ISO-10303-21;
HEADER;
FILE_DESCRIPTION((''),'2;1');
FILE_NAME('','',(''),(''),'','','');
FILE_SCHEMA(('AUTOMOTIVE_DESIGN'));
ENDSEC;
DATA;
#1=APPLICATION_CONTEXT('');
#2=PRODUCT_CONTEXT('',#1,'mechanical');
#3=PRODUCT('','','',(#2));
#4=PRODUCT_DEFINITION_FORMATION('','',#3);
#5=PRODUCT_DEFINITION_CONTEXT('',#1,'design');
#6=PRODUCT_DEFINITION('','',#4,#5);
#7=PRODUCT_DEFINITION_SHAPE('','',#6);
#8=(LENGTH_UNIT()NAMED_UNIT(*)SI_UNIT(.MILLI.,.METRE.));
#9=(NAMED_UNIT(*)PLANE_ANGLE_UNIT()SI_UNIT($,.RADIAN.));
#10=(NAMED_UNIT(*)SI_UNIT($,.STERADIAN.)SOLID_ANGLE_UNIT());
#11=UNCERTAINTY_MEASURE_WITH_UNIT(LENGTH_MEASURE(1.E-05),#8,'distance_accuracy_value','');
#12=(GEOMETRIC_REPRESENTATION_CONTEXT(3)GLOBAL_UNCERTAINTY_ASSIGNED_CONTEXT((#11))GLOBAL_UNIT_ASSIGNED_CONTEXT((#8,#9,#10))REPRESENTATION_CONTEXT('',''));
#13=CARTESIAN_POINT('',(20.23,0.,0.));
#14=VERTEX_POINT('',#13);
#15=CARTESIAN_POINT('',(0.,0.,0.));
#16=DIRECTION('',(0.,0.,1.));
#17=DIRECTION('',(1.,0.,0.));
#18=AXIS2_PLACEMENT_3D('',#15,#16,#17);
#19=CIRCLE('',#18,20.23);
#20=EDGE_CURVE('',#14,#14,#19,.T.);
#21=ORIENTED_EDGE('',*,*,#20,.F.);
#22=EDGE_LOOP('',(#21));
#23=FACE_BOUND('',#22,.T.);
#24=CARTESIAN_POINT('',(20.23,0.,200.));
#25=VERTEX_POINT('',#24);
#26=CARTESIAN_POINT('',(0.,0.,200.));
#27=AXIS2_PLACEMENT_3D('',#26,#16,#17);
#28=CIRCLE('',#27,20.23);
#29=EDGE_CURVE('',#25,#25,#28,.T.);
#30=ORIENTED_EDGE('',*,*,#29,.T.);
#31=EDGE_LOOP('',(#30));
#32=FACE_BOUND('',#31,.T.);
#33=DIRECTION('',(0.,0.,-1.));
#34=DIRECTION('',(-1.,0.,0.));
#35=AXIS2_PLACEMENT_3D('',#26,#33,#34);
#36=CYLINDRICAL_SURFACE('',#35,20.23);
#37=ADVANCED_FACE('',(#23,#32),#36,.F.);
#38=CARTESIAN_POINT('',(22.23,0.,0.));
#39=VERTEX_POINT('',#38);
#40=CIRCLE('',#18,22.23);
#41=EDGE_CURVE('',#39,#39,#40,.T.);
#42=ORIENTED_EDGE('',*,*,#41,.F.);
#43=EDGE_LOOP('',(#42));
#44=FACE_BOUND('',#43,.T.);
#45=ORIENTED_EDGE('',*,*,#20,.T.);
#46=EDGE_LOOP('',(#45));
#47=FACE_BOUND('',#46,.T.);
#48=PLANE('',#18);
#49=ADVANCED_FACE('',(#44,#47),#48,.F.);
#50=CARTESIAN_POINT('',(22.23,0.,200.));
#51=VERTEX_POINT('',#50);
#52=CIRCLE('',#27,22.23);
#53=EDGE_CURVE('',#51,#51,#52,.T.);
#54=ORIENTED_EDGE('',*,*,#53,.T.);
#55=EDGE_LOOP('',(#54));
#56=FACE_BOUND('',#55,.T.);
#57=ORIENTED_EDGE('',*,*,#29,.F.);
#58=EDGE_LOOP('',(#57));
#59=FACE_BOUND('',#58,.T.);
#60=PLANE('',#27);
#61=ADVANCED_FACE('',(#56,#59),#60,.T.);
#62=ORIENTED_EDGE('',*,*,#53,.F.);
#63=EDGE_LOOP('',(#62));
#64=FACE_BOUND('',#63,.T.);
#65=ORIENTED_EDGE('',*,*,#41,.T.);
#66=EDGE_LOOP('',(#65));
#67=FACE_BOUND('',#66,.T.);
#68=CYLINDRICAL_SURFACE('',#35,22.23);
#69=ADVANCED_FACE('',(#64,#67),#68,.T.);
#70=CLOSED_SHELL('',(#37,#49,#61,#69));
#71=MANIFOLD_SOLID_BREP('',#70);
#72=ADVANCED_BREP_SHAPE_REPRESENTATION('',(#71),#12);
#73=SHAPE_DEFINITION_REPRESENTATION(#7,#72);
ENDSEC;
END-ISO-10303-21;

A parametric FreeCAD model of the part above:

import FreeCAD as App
import Part
import Sketcher
Q = App.Units.Quantity

doc = App.newDocument("Part")
params = doc.addObject("Spreadsheet::Sheet", "Params")
for row, (alias, value) in enumerate([
    ("sketch1_diameter", "44.46 mm"),
    ("sketch1_diameter2", "40.46 mm"),
    ("pad1_length", "200 mm"),
], start=1):
    params.set(f"A{row}", alias)
    params.set(f"B{row}", "=" + value)
    params.setAlias(f"B{row}", alias)

body = doc.addObject("PartDesign::Body", "Body")

sketch1 = body.newObject("Sketcher::SketchObject", "Sketch")
sketch1.AttachmentSupport = (doc.getObject("XY_Plane"), [""])
sketch1.MapMode = "FlatFace"
sketch1.addGeometry([
    Part.Circle(App.Vector(0, 0, 0), App.Vector(0, 0, 1), 22.23),
    Part.Circle(App.Vector(0, 0, 0), App.Vector(0, 0, 1), 20.23),
], False)
sketch1.addConstraint([
    Sketcher.Constraint("Coincident", 0, 3, -1, 1),
    Sketcher.Constraint("Coincident", 1, 3, -1, 1),
    Sketcher.Constraint("Diameter", 0, Q("44.46 mm")),
    Sketcher.Constraint("Diameter", 1, Q("40.46 mm")),
])
sketch1.setExpression("Constraints[2]", "Params.sketch1_diameter")
sketch1.setExpression("Constraints[3]", "Params.sketch1_diameter2")
pad1 = body.newObject("PartDesign::Pad", "Pad")
pad1.Profile = sketch1
pad1.setExpression("Length", "Params.pad1_length")

doc.recompute()
